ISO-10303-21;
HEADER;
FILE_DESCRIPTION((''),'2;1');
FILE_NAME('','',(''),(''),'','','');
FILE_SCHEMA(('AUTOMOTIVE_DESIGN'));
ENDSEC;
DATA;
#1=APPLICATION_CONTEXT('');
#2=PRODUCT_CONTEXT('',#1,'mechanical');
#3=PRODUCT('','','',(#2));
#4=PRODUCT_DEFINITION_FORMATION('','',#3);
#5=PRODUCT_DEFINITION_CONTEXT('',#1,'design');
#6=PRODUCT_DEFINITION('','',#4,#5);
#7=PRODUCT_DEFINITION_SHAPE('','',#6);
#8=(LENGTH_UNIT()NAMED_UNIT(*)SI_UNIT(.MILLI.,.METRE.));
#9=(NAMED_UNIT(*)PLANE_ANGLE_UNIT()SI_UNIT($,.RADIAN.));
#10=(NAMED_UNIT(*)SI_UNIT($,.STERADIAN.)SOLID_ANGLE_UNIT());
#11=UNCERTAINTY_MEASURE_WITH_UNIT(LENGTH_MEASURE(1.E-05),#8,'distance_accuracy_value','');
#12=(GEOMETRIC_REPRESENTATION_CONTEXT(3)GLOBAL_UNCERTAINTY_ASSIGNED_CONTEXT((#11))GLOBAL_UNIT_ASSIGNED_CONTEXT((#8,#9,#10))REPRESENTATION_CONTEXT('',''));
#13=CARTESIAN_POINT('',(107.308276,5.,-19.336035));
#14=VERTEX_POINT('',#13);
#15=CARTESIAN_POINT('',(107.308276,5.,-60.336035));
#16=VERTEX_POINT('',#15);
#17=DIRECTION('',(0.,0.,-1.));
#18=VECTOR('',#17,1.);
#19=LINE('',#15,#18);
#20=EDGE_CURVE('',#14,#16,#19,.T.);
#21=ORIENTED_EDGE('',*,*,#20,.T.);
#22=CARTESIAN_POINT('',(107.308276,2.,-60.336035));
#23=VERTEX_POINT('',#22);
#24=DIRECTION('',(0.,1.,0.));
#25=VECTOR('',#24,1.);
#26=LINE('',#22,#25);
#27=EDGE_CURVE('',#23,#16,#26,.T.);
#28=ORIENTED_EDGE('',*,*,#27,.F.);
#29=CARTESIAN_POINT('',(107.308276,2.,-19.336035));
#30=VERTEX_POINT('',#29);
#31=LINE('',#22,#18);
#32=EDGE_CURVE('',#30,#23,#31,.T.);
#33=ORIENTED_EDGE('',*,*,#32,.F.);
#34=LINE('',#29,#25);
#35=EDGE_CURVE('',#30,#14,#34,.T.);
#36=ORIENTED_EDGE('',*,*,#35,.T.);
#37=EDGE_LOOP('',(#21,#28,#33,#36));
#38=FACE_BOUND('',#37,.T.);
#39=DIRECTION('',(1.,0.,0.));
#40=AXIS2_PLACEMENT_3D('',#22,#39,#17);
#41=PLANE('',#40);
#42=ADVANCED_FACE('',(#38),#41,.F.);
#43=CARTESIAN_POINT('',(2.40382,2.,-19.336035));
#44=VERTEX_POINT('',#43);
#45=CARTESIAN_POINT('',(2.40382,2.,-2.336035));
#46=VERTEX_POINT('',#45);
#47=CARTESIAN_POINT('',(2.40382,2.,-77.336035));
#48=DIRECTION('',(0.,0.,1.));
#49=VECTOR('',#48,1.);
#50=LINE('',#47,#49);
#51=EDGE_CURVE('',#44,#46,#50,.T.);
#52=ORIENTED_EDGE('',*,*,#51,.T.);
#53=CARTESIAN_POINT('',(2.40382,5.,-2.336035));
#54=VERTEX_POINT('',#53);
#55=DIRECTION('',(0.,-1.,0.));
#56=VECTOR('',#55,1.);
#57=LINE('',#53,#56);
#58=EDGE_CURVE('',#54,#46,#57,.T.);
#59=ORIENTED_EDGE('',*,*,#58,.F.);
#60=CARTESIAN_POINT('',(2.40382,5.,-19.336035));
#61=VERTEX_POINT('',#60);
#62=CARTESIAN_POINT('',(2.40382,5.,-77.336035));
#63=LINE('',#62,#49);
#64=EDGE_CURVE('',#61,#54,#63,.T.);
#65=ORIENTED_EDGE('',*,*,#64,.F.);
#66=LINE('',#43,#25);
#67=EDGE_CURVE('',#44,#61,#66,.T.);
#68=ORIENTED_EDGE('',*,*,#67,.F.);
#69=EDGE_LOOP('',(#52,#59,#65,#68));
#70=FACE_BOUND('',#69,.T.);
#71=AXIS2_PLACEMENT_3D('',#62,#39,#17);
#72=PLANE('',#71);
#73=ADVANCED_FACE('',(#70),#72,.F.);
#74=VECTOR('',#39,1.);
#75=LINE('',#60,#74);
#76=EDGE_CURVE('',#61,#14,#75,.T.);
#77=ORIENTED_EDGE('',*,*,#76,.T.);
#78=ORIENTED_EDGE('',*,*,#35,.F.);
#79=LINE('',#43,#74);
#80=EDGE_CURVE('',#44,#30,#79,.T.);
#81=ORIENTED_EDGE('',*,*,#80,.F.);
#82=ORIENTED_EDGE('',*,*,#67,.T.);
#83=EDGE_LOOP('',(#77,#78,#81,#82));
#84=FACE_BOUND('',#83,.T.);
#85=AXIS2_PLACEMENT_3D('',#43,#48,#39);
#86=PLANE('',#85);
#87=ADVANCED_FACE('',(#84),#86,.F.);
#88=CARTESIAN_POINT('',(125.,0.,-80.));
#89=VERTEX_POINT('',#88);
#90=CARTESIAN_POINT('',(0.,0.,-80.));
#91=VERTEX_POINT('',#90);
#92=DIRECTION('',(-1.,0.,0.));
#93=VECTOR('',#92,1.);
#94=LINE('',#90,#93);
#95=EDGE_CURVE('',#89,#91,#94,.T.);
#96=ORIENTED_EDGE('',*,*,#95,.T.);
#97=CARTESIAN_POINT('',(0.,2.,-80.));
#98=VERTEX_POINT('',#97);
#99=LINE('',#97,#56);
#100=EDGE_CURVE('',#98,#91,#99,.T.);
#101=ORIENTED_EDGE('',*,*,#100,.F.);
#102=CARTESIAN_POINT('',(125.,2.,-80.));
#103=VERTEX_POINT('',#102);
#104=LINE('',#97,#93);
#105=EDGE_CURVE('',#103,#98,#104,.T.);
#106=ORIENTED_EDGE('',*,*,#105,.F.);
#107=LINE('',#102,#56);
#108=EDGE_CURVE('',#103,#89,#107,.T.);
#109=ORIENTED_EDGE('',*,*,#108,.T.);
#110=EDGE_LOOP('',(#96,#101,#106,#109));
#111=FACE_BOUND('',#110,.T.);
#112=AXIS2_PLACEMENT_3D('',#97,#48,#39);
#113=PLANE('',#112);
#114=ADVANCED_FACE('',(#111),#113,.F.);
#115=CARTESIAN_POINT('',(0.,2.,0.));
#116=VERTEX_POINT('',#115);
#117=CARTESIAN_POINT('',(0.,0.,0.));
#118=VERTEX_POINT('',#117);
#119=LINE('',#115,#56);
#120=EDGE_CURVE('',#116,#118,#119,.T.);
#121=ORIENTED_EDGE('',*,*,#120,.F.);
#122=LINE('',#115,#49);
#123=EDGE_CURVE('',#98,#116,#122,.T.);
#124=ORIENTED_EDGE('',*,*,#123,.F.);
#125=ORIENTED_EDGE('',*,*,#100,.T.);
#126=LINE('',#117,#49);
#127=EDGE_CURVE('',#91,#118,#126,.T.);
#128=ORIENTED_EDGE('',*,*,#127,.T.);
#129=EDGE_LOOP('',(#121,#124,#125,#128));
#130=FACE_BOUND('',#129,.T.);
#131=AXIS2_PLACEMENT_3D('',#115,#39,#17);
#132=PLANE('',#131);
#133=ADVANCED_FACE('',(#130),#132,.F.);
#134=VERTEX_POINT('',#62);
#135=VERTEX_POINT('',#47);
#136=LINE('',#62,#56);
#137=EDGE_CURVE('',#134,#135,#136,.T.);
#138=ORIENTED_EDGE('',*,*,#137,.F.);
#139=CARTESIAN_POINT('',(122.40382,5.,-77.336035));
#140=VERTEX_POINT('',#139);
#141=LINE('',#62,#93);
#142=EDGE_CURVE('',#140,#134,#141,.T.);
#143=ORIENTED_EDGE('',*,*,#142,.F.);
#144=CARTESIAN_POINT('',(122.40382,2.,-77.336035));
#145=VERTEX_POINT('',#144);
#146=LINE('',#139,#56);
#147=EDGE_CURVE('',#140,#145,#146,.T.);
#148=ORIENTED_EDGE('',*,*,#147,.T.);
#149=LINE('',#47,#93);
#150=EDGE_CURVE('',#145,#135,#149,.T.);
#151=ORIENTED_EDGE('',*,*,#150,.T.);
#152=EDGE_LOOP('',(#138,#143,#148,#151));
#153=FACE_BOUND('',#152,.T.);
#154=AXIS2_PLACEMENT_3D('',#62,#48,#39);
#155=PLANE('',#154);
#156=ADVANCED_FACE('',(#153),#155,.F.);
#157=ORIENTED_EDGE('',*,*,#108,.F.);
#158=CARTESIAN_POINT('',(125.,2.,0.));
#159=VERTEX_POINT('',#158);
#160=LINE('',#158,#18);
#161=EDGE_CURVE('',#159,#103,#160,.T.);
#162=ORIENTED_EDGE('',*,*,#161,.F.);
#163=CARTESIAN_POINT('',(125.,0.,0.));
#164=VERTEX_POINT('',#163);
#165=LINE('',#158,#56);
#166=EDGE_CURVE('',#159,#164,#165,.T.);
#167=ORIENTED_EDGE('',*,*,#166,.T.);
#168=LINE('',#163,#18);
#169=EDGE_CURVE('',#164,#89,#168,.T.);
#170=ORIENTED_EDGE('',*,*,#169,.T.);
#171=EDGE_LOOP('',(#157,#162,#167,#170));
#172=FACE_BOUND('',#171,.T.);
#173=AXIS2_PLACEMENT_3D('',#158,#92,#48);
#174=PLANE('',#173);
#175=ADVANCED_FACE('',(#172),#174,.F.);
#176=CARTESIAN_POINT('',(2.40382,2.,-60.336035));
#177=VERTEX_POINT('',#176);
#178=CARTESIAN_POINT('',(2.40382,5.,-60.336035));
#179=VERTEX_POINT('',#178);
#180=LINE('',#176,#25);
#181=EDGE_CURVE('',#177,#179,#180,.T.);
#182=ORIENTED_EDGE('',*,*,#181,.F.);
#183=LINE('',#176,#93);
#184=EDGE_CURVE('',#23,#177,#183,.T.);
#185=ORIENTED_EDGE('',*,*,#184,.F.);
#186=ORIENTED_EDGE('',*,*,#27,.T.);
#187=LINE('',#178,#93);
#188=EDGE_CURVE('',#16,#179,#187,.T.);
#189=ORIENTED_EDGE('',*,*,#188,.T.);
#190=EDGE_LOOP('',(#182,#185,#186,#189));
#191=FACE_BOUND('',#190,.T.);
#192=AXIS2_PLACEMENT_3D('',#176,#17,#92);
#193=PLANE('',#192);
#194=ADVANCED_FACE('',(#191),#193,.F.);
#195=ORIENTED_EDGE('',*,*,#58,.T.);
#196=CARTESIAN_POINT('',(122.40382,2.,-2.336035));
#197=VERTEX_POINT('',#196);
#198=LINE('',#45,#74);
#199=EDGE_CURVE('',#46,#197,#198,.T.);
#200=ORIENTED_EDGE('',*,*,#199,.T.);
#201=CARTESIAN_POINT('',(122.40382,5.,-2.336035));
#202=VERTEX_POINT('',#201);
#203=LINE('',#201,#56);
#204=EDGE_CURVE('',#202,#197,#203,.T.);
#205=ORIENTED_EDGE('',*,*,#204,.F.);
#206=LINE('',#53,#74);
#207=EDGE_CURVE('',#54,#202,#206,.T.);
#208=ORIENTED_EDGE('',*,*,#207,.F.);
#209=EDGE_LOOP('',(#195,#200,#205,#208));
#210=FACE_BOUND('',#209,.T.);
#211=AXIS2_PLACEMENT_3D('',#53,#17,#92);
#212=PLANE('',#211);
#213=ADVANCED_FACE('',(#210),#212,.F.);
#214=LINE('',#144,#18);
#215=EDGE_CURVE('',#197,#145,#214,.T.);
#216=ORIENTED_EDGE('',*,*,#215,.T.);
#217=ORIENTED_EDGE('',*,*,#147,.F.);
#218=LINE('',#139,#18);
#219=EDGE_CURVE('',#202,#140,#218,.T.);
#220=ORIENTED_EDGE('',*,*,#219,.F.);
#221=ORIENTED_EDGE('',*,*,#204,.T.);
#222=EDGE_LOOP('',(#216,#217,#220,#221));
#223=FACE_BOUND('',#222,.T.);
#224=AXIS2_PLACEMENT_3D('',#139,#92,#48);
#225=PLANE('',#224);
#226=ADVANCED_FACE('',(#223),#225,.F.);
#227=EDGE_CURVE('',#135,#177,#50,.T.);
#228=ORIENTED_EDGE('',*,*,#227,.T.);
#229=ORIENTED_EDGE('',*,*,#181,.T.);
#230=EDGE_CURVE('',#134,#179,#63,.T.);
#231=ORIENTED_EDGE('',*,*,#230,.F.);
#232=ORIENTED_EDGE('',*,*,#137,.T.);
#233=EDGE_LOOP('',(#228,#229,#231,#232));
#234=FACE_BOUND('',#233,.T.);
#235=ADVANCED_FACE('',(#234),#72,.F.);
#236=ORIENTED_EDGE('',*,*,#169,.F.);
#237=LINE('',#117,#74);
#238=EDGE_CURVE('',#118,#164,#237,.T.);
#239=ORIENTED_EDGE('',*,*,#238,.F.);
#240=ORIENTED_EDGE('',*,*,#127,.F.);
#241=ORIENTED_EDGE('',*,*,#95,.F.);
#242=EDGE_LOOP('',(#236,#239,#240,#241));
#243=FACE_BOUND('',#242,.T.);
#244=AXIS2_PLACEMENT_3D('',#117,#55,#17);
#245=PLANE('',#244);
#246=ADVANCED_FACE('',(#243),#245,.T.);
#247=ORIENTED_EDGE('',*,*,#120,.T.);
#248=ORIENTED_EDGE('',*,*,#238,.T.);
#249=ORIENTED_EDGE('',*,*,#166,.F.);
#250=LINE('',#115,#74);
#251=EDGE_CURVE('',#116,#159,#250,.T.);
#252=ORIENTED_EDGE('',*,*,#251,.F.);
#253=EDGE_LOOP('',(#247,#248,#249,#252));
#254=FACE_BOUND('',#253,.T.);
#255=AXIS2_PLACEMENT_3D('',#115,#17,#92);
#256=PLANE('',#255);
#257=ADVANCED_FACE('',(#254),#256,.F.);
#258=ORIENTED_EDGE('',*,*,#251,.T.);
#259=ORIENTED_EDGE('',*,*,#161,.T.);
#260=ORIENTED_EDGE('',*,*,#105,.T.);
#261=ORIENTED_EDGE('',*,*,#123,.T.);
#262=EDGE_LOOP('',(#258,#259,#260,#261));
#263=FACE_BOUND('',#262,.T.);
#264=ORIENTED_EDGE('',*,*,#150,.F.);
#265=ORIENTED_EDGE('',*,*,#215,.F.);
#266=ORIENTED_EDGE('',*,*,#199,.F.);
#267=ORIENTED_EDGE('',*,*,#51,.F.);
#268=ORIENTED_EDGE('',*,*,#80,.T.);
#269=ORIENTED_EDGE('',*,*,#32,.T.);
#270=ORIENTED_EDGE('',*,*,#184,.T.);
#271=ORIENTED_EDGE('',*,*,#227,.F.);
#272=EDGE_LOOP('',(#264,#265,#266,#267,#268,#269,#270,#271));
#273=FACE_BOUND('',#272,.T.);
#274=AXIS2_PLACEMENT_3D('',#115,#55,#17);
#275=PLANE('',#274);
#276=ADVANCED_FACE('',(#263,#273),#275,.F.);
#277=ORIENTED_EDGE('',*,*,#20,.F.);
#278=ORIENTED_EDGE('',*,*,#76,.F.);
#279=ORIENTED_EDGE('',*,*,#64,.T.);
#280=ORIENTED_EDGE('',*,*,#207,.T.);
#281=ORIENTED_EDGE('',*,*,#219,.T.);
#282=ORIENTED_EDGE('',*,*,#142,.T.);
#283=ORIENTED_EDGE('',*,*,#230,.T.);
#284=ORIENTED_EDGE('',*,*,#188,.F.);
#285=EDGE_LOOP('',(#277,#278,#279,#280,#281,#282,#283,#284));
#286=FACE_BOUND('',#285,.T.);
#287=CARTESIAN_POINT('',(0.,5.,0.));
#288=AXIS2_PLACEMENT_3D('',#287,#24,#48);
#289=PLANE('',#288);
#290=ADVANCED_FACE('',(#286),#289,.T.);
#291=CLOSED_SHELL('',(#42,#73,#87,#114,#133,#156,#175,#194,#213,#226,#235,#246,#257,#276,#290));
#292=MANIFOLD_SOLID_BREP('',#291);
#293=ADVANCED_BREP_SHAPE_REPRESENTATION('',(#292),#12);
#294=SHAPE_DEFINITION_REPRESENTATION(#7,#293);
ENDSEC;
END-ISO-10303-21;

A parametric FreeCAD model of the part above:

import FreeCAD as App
import Part
import Sketcher
from FreeCAD import Vector
Q = App.Units.Quantity


def add_polygon(sketch, points):
    """Adds a closed chain of lines whose ends are joined by coincident constraints."""
    first, n = sketch.GeometryCount, len(points)
    for a, b in zip(points, points[1:] + points[:1]):
        sketch.addGeometry(Part.LineSegment(App.Vector(*a, 0), App.Vector(*b, 0)), False)
    for i in range(n):
        sketch.addConstraint(Sketcher.Constraint("Coincident", first + i, 2, first + (i + 1) % n, 1))

doc = App.newDocument("Part")
body = doc.addObject("PartDesign::Body", "Body")

sketch1 = doc.addObject("Sketcher::SketchObject", "Sketch")
body.addObject(sketch1)
sketch1.AttachmentSupport = (doc.XZ_Plane, [""])
sketch1.MapMode = "FlatFace"
add_polygon(sketch1, [(0, -80), (0, 0), (125, 0), (125, -80)])
sketch1.addConstraint([
    Sketcher.Constraint("Vertical", 0),
    Sketcher.Constraint("Horizontal", 1),
    Sketcher.Constraint("Vertical", 2),
    Sketcher.Constraint("Horizontal", 3),
    Sketcher.Constraint("Coincident", 0, 2, -1, 1),
    Sketcher.Constraint("DistanceX", 1, 1, 1, 2, Q("125 mm")),
    Sketcher.Constraint("DistanceY", 0, 1, 0, 2, Q("80 mm")),
])
pad1 = doc.addObject("PartDesign::Pad", "Pad")
body.addObject(pad1)
pad1.Profile = sketch1
pad1.Length = 2
pad1.Reversed = True

sketch2 = doc.addObject("Sketcher::SketchObject", "Sketch001")
body.addObject(sketch2)
sketch2.AttachmentSupport = (doc.XZ_Plane, [""])
sketch2.MapMode = "FlatFace"
sketch2.AttachmentOffset = App.Placement(Vector(0, 0, -2), App.Rotation())
add_polygon(sketch2, [(2, -77), (2, -2), (122, -2), (122, -77)])
sketch2.addConstraint([
    Sketcher.Constraint("Vertical", 0),
    Sketcher.Constraint("Horizontal", 1),
    Sketcher.Constraint("Vertical", 2),
    Sketcher.Constraint("Horizontal", 3),
    Sketcher.Constraint("DistanceX", 1, 1, 1, 2, Q("120 mm")),
    Sketcher.Constraint("DistanceY", 0, 1, 0, 2, Q("75 mm")),
    Sketcher.Constraint("DistanceX", -1, 1, 0, 2, Q("2.40382 mm")),
    Sketcher.Constraint("DistanceY", 0, 2, -1, 1, Q("2.336035 mm")),
])
pad2 = doc.addObject("PartDesign::Pad", "Pad001")
body.addObject(pad2)
pad2.Profile = sketch2
pad2.Length = 3
pad2.Reversed = True

sketch3 = doc.addObject("Sketcher::SketchObject", "Sketch002")
body.addObject(sketch3)
sketch3.AttachmentSupport = (doc.XZ_Plane, [""])
sketch3.MapMode = "FlatFace"
sketch3.AttachmentOffset = App.Placement(Vector(0, 0, -5), App.Rotation())
add_polygon(sketch3, [(2, -60), (2, -19), (107, -19), (107, -60)])
sketch3.addConstraint([
    Sketcher.Constraint("Vertical", 0),
    Sketcher.Constraint("Horizontal", 1),
    Sketcher.Constraint("Vertical", 2),
    Sketcher.Constraint("Horizontal", 3),
    Sketcher.Constraint("DistanceY", 0, 1, 0, 2, Q("41 mm")),
    Sketcher.Constraint("DistanceX", 1, 1, 1, 2, Q("104.904455 mm")),
    Sketcher.Constraint("DistanceX", -1, 1, 0, 2, Q("2.40382 mm")),
    Sketcher.Constraint("DistanceY", 0, 2, -1, 1, Q("19.336035 mm")),
])
pocket1 = doc.addObject("PartDesign::Pocket", "Pocket")
body.addObject(pocket1)
pocket1.Profile = sketch3
pocket1.Length = 3
pocket1.Reversed = True

doc.recompute()
